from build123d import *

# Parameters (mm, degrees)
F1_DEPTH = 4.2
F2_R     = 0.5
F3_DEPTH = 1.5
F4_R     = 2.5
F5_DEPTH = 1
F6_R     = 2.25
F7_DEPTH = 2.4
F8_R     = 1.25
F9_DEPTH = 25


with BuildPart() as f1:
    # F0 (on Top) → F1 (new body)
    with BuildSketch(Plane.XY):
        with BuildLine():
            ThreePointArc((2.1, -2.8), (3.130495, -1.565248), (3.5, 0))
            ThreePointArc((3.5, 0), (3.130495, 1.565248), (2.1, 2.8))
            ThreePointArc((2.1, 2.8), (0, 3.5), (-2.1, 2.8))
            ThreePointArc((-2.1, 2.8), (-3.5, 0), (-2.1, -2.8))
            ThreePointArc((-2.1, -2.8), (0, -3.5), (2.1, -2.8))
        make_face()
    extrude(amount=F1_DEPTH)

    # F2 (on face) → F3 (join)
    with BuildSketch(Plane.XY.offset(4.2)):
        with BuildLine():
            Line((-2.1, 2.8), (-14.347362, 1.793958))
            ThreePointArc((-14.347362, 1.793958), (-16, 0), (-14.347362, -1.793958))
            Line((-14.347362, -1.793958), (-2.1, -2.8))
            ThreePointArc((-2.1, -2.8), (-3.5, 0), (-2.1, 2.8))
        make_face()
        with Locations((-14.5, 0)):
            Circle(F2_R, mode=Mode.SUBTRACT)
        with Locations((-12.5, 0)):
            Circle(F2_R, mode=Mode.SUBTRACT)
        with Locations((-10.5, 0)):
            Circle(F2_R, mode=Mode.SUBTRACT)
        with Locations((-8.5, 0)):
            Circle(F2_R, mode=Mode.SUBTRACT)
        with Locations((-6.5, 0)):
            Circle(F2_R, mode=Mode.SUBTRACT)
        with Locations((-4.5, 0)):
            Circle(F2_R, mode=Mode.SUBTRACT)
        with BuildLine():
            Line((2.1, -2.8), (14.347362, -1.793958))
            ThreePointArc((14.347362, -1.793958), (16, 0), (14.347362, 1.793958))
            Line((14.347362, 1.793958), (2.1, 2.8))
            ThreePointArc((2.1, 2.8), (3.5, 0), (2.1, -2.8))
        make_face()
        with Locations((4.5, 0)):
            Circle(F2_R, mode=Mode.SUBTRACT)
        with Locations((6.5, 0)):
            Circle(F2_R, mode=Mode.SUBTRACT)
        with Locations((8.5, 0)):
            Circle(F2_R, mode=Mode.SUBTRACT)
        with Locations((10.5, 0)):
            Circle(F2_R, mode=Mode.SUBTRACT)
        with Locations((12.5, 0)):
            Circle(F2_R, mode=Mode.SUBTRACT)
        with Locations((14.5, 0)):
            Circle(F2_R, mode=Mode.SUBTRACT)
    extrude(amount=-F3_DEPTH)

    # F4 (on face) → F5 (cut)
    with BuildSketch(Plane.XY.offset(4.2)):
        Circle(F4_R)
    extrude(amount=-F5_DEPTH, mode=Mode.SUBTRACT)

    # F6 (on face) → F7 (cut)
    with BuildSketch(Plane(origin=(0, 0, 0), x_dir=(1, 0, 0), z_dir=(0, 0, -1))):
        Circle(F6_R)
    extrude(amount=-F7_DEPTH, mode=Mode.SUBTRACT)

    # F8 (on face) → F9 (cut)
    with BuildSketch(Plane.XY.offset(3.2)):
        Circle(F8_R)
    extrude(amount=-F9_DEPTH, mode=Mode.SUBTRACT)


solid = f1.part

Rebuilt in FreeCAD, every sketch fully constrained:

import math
import FreeCAD as App
import Part
import Sketcher

V = App.Vector
Q = App.Units.Quantity

doc = App.newDocument("Part")
body = doc.addObject("PartDesign::Body", "Body")

sketch1 = doc.addObject("Sketcher::SketchObject", "Sketch")
body.addObject(sketch1)
sketch1.AttachmentSupport = (doc.XY_Plane, [""])
sketch1.MapMode = "FlatFace"
sketch1.addGeometry([
    Part.ArcOfCircle(Part.Circle(V(0, 0, 0), V(0, 0, 1), 3.5), math.radians(-53.130105), math.radians(0.000002)),
    Part.ArcOfCircle(Part.Circle(V(0, 0, 0), V(0, 0, 1), 3.5), math.radians(-0.000002), math.radians(53.130105)),
    Part.ArcOfCircle(Part.Circle(V(0, 0, 0), V(0, 0, 1), 3.5), math.radians(53.130102), math.radians(306.869898)),
], False)
sketch1.addConstraint([
    Sketcher.Constraint("Tangent", 0, 2, 1, 1),
    Sketcher.Constraint("Tangent", 1, 2, 2, 1),
    Sketcher.Constraint("Tangent", 2, 2, 0, 1),
    Sketcher.Constraint("Coincident", 0, 3, -1, 1),
    Sketcher.Constraint("PointOnObject", 0, 2, -1),
    Sketcher.Constraint("Vertical", 1, 2, 2, 2),
    Sketcher.Constraint("Radius", 0, Q("3.5 mm")),
    Sketcher.Constraint("DistanceX", -1, 1, 1, 2, Q("2.1 mm")),
])
pad1 = doc.addObject("PartDesign::Pad", "Pad")
body.addObject(pad1)
pad1.Profile = sketch1
pad1.Length = 4.2

sketch2 = doc.addObject("Sketcher::SketchObject", "Sketch001")
body.addObject(sketch2)
sketch2.AttachmentSupport = (doc.XY_Plane, [""])
sketch2.MapMode = "FlatFace"
sketch2.AttachmentOffset = App.Placement(V(0, 0, 4.2), App.Rotation())
sketch2.addGeometry([
    Part.LineSegment(V(-2.1, 2.8, 0), V(-14.347362, 1.793958, 0)),
    Part.ArcOfCircle(Part.Circle(V(-14.2, 0, 0), V(0, 0, 1), 1.8), math.radians(94.695941), math.radians(265.304059)),
    Part.LineSegment(V(-14.347362, -1.793958, 0), V(-2.1, -2.8, 0)),
    Part.ArcOfCircle(Part.Circle(V(0, 0, 0), V(0, 0, 1), 3.5), math.radians(126.869898), math.radians(233.130102)),
    Part.Circle(V(-14.5, 0, 0), V(0, 0, 1), 0.5),
    Part.Circle(V(-12.5, 0, 0), V(0, 0, 1), 0.5),
    Part.Circle(V(-10.5, 0, 0), V(0, 0, 1), 0.5),
    Part.Circle(V(-8.5, 0, 0), V(0, 0, 1), 0.5),
    Part.Circle(V(-6.5, 0, 0), V(0, 0, 1), 0.5),
    Part.Circle(V(-4.5, 0, 0), V(0, 0, 1), 0.5),
    Part.LineSegment(V(2.1, -2.8, 0), V(14.347362, -1.793958, 0)),
    Part.ArcOfCircle(Part.Circle(V(14.2, 0, 0), V(0, 0, 1), 1.8), math.radians(-85.304059), math.radians(85.304059)),
    Part.LineSegment(V(14.347362, 1.793958, 0), V(2.1, 2.8, 0)),
    Part.ArcOfCircle(Part.Circle(V(0, 0, 0), V(0, 0, 1), 3.5), math.radians(-53.130102), math.radians(53.130102)),
    Part.Circle(V(4.5, 0, 0), V(0, 0, 1), 0.5),
    Part.Circle(V(6.5, 0, 0), V(0, 0, 1), 0.5),
    Part.Circle(V(8.5, 0, 0), V(0, 0, 1), 0.5),
    Part.Circle(V(10.5, 0, 0), V(0, 0, 1), 0.5),
    Part.Circle(V(12.5, 0, 0), V(0, 0, 1), 0.5),
    Part.Circle(V(14.5, 0, 0), V(0, 0, 1), 0.5),
], False)
sketch2.addConstraint([
    Sketcher.Constraint("Tangent", 0, 2, 1, 1),
    Sketcher.Constraint("Tangent", 1, 2, 2, 1),
    Sketcher.Constraint("Coincident", 2, 2, 3, 2),
    Sketcher.Constraint("Coincident", 3, 1, 0, 1),
    Sketcher.Constraint("Tangent", 10, 2, 11, 1),
    Sketcher.Constraint("Tangent", 11, 2, 12, 1),
    Sketcher.Constraint("Coincident", 12, 2, 13, 2),
    Sketcher.Constraint("Coincident", 13, 1, 10, 1),
    Sketcher.Constraint("Coincident", 3, 3, -1, 1),
    Sketcher.Constraint("Coincident", 13, 3, -1, 1),
    Sketcher.Constraint("Equal", 4, 5),
    Sketcher.Constraint("Equal", 5, 6),
    Sketcher.Constraint("Equal", 6, 7),
    Sketcher.Constraint("Equal", 7, 8),
    Sketcher.Constraint("Equal", 8, 9),
    Sketcher.Constraint("Equal", 1, 11),
    Sketcher.Constraint("Equal", 3, 13),
    Sketcher.Constraint("Equal", 9, 14),
    Sketcher.Constraint("Equal", 14, 15),
    Sketcher.Constraint("Equal", 15, 16),
    Sketcher.Constraint("Equal", 16, 17),
    Sketcher.Constraint("Equal", 17, 18),
    Sketcher.Constraint("Equal", 18, 19),
    Sketcher.Constraint("Symmetric", 1, 3, 11, 3, -1, 1),
    Sketcher.Constraint("Symmetric", 9, 3, 14, 3, -1, 1),
    Sketcher.Constraint("Symmetric", 8, 3, 15, 3, -1, 1),
    Sketcher.Constraint("Symmetric", 7, 3, 16, 3, -1, 1),
    Sketcher.Constraint("Symmetric", 6, 3, 17, 3, -1, 1),
    Sketcher.Constraint("Symmetric", 5, 3, 18, 3, -1, 1),
    Sketcher.Constraint("Symmetric", 4, 3, 19, 3, -1, 1),
    Sketcher.Constraint("Symmetric", 1, 2, 10, 2, -2),
    Sketcher.Constraint("PointOnObject", 4, 3, -1),
    Sketcher.Constraint("PointOnObject", 5, 3, -1),
    Sketcher.Constraint("PointOnObject", 6, 3, -1),
    Sketcher.Constraint("PointOnObject", 7, 3, -1),
    Sketcher.Constraint("PointOnObject", 8, 3, -1),
    Sketcher.Constraint("PointOnObject", 9, 3, -1),
    Sketcher.Constraint("Parallel", 0, 10),
    Sketcher.Constraint("Parallel", 2, 12),
    Sketcher.Constraint("Diameter", 4, Q("1 mm")),
    Sketcher.Constraint("Radius", 1, Q("1.8 mm")),
    Sketcher.Constraint("Radius", 3, Q("3.5 mm")),
    Sketcher.Constraint("DistanceX", 4, 3, 5, 3, Q("2 mm")),
    Sketcher.Constraint("DistanceX", 5, 3, 6, 3, Q("2 mm")),
    Sketcher.Constraint("DistanceX", 6, 3, 7, 3, Q("2 mm")),
    Sketcher.Constraint("DistanceX", 7, 3, 8, 3, Q("2 mm")),
    Sketcher.Constraint("DistanceX", 8, 3, 9, 3, Q("2 mm")),
    Sketcher.Constraint("DistanceX", 9, 3, 14, 3, Q("9 mm")),
    Sketcher.Constraint("DistanceX", 1, 3, -1, 1, Q("14.2 mm")),
    Sketcher.Constraint("DistanceX", 2, 2, -1, 1, Q("2.1 mm")),
])
pad2 = doc.addObject("PartDesign::Pad", "Pad001")
body.addObject(pad2)
pad2.Profile = sketch2
pad2.Length = 1.5
pad2.Reversed = True

sketch3 = doc.addObject("Sketcher::SketchObject", "Sketch002")
body.addObject(sketch3)
sketch3.AttachmentSupport = (doc.XY_Plane, [""])
sketch3.MapMode = "FlatFace"
sketch3.AttachmentOffset = App.Placement(V(0, 0, 4.2), App.Rotation())
sketch3.addGeometry(Part.Circle(V(0, 0, 0), V(0, 0, 1), 2.5), False)
sketch3.addConstraint([
    Sketcher.Constraint("Coincident", 0, 3, -1, 1),
    Sketcher.Constraint("Diameter", 0, Q("5 mm")),
])
pocket1 = doc.addObject("PartDesign::Pocket", "Pocket")
body.addObject(pocket1)
pocket1.Profile = sketch3
pocket1.Length = 1

sketch4 = doc.addObject("Sketcher::SketchObject", "Sketch003")
body.addObject(sketch4)
sketch4.AttachmentSupport = (doc.XY_Plane, [""])
sketch4.MapMode = "FlatFace"
sketch4.addGeometry(Part.Circle(V(0, 0, 0), V(0, 0, 1), 2.25), False)
sketch4.addConstraint([
    Sketcher.Constraint("Coincident", 0, 3, -1, 1),
    Sketcher.Constraint("Diameter", 0, Q("4.5 mm")),
])
pocket2 = doc.addObject("PartDesign::Pocket", "Pocket001")
body.addObject(pocket2)
pocket2.Profile = sketch4
pocket2.Length = 2.4
pocket2.Reversed = True

sketch5 = doc.addObject("Sketcher::SketchObject", "Sketch004")
body.addObject(sketch5)
sketch5.AttachmentSupport = (doc.XY_Plane, [""])
sketch5.MapMode = "FlatFace"
sketch5.AttachmentOffset = App.Placement(V(0, 0, 3.2), App.Rotation())
sketch5.addGeometry(Part.Circle(V(0, 0, 0), V(0, 0, 1), 1.25), False)
sketch5.addConstraint([
    Sketcher.Constraint("Coincident", 0, 3, -1, 1),
    Sketcher.Constraint("Diameter", 0, Q("2.5 mm")),
])
pocket3 = doc.addObject("PartDesign::Pocket", "Pocket002")
body.addObject(pocket3)
pocket3.Profile = sketch5
pocket3.Length = 25

doc.recompute()
